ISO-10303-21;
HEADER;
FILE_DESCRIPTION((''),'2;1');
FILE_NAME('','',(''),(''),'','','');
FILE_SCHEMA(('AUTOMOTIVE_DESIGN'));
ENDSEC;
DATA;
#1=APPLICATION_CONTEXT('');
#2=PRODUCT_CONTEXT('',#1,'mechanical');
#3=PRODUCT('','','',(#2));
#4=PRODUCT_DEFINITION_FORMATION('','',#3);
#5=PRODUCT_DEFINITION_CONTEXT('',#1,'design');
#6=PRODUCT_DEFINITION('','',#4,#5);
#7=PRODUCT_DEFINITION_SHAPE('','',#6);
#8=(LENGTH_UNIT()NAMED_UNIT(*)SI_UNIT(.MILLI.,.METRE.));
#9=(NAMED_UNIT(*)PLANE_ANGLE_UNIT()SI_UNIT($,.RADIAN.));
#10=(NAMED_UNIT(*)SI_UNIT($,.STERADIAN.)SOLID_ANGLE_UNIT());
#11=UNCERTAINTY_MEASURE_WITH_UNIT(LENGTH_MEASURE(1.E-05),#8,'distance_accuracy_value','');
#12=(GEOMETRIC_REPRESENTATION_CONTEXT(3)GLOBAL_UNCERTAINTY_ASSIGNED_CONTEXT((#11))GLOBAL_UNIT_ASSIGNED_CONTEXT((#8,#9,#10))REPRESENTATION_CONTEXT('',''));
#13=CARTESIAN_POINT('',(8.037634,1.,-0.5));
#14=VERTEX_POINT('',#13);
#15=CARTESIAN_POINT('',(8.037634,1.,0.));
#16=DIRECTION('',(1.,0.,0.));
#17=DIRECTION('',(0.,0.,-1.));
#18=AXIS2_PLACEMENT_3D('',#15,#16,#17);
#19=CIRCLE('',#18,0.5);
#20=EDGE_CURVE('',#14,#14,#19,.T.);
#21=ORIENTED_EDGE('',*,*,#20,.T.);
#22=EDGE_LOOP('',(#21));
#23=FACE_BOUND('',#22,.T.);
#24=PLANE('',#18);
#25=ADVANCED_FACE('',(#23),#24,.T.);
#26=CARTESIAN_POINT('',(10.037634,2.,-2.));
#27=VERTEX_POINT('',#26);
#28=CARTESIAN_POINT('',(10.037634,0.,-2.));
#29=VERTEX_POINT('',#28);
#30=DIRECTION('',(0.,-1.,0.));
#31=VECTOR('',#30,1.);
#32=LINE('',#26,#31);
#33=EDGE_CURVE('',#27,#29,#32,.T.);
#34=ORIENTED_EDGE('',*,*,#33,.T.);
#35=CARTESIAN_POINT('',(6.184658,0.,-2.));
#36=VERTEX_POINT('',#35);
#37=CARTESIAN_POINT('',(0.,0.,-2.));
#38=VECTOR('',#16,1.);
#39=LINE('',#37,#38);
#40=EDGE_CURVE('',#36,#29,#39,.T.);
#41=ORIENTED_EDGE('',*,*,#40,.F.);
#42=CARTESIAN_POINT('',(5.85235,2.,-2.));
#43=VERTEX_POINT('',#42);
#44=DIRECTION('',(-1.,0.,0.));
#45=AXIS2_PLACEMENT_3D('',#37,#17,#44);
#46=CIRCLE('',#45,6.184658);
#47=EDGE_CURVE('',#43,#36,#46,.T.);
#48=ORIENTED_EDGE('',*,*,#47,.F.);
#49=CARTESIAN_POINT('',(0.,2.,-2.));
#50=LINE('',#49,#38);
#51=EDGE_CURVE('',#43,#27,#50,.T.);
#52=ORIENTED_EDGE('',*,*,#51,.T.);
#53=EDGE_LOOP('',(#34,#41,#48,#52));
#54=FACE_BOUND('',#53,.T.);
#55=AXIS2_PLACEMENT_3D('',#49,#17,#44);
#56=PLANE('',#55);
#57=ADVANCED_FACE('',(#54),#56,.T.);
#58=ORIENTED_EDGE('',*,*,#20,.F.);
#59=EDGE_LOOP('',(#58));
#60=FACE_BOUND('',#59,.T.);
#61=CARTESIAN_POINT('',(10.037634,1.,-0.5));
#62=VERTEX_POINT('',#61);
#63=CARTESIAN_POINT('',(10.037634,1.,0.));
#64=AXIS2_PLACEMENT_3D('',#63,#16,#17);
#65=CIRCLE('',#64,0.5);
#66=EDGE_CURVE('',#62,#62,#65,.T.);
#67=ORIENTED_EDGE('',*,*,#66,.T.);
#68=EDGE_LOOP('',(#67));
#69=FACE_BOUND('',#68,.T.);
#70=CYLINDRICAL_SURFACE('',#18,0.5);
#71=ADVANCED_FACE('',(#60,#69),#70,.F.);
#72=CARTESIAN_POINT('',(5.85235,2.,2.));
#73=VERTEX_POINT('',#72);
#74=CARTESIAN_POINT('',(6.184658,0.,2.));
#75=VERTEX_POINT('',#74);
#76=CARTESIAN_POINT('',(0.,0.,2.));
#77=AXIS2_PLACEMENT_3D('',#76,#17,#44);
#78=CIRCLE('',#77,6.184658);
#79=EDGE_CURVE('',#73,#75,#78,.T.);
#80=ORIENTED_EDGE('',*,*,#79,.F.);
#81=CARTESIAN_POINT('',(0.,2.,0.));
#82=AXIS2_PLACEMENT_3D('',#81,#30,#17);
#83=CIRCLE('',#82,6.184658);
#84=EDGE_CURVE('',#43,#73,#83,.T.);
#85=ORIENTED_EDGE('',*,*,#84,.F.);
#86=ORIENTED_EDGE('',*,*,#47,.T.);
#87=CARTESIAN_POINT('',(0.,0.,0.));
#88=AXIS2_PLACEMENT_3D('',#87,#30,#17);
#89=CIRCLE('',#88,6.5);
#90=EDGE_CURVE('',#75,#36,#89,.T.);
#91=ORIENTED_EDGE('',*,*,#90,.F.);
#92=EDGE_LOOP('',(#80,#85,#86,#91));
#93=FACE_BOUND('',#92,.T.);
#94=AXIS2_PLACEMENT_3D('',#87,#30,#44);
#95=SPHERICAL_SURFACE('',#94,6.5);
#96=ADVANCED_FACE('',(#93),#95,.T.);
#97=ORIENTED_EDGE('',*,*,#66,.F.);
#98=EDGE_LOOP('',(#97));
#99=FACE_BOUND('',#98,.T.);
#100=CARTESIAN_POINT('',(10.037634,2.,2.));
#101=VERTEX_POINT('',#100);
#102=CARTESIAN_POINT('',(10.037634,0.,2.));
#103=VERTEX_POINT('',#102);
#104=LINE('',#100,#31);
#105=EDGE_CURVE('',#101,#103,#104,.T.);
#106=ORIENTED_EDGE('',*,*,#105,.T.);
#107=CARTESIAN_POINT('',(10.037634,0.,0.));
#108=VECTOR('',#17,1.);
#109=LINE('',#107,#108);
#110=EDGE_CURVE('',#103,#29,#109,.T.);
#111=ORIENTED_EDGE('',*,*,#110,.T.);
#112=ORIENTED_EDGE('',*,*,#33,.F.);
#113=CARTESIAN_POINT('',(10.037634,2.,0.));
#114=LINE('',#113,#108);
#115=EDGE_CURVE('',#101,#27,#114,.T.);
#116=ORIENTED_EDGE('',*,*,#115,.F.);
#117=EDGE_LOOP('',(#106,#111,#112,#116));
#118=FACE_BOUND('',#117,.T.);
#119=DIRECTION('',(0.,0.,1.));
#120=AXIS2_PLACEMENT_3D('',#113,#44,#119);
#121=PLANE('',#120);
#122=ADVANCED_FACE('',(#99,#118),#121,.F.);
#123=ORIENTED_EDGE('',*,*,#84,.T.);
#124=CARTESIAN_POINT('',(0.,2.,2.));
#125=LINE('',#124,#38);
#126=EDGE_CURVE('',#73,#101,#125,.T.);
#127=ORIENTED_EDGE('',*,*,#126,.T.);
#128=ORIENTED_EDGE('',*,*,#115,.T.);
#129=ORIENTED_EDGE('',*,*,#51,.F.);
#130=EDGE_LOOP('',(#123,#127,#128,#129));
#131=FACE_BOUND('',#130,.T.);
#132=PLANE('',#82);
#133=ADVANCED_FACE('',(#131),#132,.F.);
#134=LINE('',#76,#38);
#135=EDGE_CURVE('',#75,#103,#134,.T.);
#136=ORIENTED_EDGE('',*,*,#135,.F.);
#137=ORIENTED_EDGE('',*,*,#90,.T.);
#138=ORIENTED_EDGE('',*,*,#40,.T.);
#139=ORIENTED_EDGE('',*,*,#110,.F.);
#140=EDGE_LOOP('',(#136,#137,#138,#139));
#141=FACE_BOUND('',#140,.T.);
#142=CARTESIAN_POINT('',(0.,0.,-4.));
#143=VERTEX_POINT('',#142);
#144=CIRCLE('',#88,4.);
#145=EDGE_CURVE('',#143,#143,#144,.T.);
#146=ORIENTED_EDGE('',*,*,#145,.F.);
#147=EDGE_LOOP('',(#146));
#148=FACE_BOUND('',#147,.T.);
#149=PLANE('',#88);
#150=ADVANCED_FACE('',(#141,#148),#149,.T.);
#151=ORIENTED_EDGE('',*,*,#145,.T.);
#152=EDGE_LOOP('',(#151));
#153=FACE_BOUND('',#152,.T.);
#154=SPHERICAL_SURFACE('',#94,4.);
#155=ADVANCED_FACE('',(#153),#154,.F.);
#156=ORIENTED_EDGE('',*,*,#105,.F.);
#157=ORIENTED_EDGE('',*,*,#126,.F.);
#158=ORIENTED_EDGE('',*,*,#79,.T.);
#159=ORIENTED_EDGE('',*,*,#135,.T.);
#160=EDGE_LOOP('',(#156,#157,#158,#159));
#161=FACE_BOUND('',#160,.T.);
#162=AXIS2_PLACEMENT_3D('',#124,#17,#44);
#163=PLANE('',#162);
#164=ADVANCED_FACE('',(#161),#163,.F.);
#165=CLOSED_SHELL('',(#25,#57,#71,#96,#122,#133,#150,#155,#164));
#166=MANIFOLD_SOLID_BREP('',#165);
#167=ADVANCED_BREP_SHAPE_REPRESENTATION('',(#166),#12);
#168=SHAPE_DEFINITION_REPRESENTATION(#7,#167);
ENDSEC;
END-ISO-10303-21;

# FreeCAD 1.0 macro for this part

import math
import FreeCAD as App
import Part
import Sketcher
from FreeCAD import Vector
Q = App.Units.Quantity

doc = App.newDocument("Part")
body = doc.addObject("PartDesign::Body", "Body")

# Sketch on XY plane
sketch1 = body.newObject("Sketcher::SketchObject", "Sketch")
sketch1.AttachmentSupport = (doc.getObject("XY_Plane"), [""])
sketch1.MapMode = "FlatFace"
sketch1.addGeometry([
    Part.ArcOfCircle(Part.Circle(Vector(0, 0, 0), Vector(0, 0, 1), 4), math.radians(90), math.radians(180)),
    Part.LineSegment(Vector(0, 4, 0), Vector(0, 6.5, 0)),
    Part.ArcOfCircle(Part.Circle(Vector(0, 0, 0), Vector(0, 0, 1), 6.5), math.radians(90), math.radians(180)),
    Part.LineSegment(Vector(-6.5, 0, 0), Vector(-4, 0, 0)),
], False)
sketch1.addConstraint([
    Sketcher.Constraint("Coincident", 0, 1, 1, 1),
    Sketcher.Constraint("Coincident", 1, 2, 2, 1),
    Sketcher.Constraint("Coincident", 2, 2, 3, 1),
    Sketcher.Constraint("Coincident", 3, 2, 0, 2),
    Sketcher.Constraint("Vertical", 1),
    Sketcher.Constraint("Horizontal", 3),
    Sketcher.Constraint("Coincident", 0, 3, -1, 1),
    Sketcher.Constraint("Coincident", 2, 3, -1, 1),
    Sketcher.Constraint("PointOnObject", 0, 1, -2),
    Sketcher.Constraint("PointOnObject", 2, 2, -1),
    Sketcher.Constraint("Radius", 0, Q("4 mm")),
    Sketcher.Constraint("Radius", 2, Q("6.5 mm")),
])
revolution = body.newObject("PartDesign::Revolution", "Revolution")
revolution.Profile = sketch1
revolution.ReferenceAxis = (sketch1, ["V_Axis"])
revolution.Angle = 360

# Sketch on XZ plane
sketch2 = body.newObject("Sketcher::SketchObject", "Sketch001")
sketch2.AttachmentSupport = (doc.getObject("XZ_Plane"), [""])
sketch2.MapMode = "FlatFace"
sketch2.addGeometry([
    Part.LineSegment(Vector(10, 2, 0), Vector(3.5, 2, 0)),  # 0
    Part.ArcOfCircle(Part.Circle(Vector(0, 0, 0), Vector(0, 0, 1), 4), math.radians(0), math.radians(30)),  # 1
    Part.ArcOfCircle(Part.Circle(Vector(0, 0, 0), Vector(0, 0, 1), 4), math.radians(-30), math.radians(0)),  # 2
    Part.LineSegment(Vector(3.5, -2, 0), Vector(10, -2, 0)),  # 3
    Part.LineSegment(Vector(10, -2, 0), Vector(10, 2, 0)),  # 4
], False)
sketch2.addConstraint([
    Sketcher.Constraint("Coincident", 0, 2, 1, 2),
    Sketcher.Constraint("Tangent", 1, 1, 2, 2),
    Sketcher.Constraint("Coincident", 2, 1, 3, 1),
    Sketcher.Constraint("Coincident", 3, 2, 4, 1),
    Sketcher.Constraint("Coincident", 4, 2, 0, 1),
    Sketcher.Constraint("Horizontal", 0),
    Sketcher.Constraint("Horizontal", 3),
    Sketcher.Constraint("Vertical", 4),
    Sketcher.Constraint("Coincident", 1, 3, -1, 1),
    Sketcher.Constraint("Equal", 1, 2),
    Sketcher.Constraint("PointOnObject", 1, 1, -1),
    Sketcher.Constraint("Vertical", 0, 2, 2, 1),
    Sketcher.Constraint("Radius", 1, Q("4 mm")),
    Sketcher.Constraint("DistanceY", 4, 1, 4, 2, Q("4 mm")),
    Sketcher.Constraint("DistanceX", 0, 2, 0, 1, Q("6.573533 mm")),
])
pad1 = body.newObject("PartDesign::Pad", "Pad")
pad1.Profile = sketch2
pad1.Length = 2
pad1.Reversed = True

# Sketch on YZ plane
sketch3 = body.newObject("Sketcher::SketchObject", "Sketch002")
sketch3.AttachmentSupport = (doc.getObject("YZ_Plane"), [""])
sketch3.MapMode = "FlatFace"
sketch3.AttachmentOffset = App.Placement(Vector(0, 0, 10.037634), App.Rotation())
sketch3.addGeometry(Part.Circle(Vector(1, 0, 0), Vector(0, 0, 1), 0.5), False)
sketch3.addConstraint([
    Sketcher.Constraint("PointOnObject", 0, 3, -1),
    Sketcher.Constraint("Diameter", 0, Q("1 mm")),
    Sketcher.Constraint("DistanceX", -1, 1, 0, 3, Q("1 mm")),
])
pocket1 = body.newObject("PartDesign::Pocket", "Pocket")
pocket1.Profile = sketch3
pocket1.Length = 2

doc.recompute()
